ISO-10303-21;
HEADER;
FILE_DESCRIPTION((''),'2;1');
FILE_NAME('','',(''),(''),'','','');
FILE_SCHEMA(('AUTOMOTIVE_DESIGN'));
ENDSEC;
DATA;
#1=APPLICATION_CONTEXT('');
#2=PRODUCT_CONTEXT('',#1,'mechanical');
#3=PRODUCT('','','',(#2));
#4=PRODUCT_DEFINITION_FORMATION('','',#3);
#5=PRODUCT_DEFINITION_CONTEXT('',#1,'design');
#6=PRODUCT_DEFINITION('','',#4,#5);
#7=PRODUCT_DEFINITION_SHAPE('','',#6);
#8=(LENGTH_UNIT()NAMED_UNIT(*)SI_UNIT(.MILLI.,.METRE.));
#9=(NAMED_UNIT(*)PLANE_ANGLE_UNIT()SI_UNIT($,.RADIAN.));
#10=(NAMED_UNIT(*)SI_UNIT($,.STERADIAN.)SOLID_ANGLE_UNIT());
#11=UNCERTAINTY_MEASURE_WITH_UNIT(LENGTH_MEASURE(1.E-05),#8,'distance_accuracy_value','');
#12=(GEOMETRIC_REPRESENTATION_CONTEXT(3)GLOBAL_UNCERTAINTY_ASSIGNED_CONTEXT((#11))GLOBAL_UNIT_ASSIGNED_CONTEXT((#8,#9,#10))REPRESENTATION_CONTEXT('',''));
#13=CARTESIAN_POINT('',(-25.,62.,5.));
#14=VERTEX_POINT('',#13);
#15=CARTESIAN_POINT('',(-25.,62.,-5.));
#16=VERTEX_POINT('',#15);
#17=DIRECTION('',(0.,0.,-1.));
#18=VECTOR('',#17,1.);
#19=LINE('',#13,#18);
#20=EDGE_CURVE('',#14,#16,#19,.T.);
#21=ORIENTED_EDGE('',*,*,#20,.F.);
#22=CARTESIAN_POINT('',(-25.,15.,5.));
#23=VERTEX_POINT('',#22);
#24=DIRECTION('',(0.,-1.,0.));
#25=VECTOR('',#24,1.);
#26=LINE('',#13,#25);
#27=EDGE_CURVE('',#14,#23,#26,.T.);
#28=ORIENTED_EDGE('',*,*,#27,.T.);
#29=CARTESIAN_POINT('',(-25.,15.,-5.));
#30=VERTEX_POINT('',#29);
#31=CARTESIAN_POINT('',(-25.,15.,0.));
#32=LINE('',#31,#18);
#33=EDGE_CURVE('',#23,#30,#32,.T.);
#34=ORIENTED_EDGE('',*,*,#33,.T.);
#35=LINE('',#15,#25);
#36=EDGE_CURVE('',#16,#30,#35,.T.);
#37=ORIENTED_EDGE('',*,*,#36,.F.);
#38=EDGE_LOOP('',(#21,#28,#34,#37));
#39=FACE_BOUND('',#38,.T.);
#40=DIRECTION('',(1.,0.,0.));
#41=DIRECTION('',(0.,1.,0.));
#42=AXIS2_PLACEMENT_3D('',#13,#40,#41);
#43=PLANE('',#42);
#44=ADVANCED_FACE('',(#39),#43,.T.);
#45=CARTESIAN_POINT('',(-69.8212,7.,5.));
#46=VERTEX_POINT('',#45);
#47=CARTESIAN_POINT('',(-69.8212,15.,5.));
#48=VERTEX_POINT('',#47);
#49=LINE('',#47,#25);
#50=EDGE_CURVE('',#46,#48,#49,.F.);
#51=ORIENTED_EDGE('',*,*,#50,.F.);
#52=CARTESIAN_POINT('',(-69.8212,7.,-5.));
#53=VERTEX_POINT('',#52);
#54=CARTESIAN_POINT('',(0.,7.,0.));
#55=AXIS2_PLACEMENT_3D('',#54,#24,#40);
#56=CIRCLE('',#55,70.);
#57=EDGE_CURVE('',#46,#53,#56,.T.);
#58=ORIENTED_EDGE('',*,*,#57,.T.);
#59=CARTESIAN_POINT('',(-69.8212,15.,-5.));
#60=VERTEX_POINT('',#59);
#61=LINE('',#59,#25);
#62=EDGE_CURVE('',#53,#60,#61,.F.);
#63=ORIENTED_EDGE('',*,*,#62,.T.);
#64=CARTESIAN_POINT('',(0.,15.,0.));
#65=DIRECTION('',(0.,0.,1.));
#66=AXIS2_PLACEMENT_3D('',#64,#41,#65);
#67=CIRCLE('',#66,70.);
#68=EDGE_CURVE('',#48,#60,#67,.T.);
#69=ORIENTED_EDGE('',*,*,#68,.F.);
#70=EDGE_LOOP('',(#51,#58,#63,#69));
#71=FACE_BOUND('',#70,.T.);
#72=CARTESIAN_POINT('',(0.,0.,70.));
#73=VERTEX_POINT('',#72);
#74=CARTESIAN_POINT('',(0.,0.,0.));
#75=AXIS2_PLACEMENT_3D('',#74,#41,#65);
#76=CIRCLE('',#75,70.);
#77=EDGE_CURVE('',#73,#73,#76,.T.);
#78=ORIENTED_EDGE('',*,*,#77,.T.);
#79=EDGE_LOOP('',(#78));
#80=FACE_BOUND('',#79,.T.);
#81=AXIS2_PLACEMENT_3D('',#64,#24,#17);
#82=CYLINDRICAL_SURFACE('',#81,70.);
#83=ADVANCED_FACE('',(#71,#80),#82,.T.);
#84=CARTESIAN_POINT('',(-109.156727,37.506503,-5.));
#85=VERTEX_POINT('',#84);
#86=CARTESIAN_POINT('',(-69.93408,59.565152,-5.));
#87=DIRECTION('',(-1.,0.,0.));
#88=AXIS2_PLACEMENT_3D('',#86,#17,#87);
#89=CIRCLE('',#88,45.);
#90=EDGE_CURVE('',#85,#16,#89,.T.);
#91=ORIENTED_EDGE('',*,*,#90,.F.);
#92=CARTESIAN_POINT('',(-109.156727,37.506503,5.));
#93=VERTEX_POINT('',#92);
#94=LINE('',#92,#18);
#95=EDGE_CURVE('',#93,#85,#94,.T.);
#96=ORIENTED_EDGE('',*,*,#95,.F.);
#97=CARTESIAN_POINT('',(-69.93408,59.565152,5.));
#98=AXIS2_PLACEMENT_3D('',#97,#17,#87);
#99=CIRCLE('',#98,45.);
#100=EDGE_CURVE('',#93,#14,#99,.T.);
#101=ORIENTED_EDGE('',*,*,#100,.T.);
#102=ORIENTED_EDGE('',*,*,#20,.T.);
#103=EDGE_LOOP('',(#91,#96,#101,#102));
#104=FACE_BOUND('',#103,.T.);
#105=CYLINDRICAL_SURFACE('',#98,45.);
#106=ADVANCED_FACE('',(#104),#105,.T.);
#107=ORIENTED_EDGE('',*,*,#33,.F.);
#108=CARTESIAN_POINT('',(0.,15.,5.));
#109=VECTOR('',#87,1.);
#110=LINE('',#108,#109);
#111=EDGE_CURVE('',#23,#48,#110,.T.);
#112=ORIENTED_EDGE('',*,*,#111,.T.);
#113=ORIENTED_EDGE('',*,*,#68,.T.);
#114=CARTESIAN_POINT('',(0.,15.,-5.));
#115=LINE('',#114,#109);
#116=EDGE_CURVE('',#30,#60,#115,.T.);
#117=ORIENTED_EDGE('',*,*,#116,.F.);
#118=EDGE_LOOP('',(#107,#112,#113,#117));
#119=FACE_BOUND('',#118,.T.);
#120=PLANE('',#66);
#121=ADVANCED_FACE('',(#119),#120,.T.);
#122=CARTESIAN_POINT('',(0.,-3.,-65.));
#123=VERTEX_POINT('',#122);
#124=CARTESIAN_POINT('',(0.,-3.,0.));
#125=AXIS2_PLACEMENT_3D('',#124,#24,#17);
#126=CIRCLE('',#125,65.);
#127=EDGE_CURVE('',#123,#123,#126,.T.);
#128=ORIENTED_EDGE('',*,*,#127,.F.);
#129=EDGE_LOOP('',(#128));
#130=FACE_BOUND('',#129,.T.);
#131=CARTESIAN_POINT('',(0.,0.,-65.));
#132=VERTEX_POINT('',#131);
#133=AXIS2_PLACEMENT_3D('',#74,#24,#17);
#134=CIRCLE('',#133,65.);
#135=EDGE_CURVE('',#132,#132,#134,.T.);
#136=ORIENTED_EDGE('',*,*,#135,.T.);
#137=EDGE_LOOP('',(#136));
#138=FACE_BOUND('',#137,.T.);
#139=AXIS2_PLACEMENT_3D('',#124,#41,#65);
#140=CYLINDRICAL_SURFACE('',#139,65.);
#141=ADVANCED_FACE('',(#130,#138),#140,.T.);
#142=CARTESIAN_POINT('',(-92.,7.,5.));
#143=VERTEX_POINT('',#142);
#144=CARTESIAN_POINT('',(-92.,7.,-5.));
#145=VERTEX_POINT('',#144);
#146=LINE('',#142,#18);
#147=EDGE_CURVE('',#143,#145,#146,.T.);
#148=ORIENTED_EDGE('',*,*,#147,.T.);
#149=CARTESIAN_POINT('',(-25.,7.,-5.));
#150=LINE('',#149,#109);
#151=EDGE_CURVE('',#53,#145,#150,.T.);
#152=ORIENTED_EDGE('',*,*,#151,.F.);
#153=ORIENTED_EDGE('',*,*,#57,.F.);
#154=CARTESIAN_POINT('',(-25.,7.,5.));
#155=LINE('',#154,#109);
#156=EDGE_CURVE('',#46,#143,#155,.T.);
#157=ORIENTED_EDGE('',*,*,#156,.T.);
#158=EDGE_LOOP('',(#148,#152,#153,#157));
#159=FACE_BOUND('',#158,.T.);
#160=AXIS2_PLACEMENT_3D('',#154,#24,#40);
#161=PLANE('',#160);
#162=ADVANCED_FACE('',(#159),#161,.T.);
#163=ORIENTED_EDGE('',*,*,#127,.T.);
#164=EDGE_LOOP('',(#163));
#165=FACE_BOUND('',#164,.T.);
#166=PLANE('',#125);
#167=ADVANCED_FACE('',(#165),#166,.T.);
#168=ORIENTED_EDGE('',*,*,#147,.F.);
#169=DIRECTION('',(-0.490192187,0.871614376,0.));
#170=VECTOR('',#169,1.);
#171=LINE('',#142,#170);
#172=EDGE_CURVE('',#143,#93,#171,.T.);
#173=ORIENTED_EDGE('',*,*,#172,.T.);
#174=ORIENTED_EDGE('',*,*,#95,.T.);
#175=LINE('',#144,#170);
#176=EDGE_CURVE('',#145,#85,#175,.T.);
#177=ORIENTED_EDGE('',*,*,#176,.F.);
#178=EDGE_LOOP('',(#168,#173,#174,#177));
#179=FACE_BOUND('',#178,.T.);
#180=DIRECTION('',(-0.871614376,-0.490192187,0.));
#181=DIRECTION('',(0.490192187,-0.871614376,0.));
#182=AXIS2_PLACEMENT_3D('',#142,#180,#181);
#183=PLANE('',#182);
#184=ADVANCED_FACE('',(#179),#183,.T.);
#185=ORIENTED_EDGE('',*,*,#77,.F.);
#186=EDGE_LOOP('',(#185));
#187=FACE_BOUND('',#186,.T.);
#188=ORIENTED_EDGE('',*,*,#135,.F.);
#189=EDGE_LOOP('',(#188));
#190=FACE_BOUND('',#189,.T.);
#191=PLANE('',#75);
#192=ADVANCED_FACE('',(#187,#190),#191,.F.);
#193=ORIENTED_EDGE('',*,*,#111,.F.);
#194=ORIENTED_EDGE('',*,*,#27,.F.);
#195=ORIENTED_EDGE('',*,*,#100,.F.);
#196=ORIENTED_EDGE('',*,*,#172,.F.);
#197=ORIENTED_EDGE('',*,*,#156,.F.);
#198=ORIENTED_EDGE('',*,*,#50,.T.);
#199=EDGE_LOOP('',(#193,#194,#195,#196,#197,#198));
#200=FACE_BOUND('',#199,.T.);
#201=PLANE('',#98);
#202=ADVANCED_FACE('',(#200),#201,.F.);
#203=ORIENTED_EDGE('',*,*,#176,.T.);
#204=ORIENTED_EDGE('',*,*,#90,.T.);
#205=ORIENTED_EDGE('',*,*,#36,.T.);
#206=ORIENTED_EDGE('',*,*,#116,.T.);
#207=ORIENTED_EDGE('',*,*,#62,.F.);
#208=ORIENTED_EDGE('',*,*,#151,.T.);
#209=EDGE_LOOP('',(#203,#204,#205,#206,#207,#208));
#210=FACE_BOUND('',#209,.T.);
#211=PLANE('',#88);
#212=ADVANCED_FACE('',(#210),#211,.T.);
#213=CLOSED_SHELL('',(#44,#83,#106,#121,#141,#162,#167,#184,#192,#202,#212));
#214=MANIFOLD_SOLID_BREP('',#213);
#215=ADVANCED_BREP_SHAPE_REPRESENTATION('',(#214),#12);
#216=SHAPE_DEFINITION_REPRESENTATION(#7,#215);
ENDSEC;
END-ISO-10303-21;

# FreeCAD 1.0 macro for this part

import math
import FreeCAD as App
import Part
import Sketcher
from FreeCAD import Vector
Q = App.Units.Quantity

doc = App.newDocument("Part")
body = doc.addObject("PartDesign::Body", "Body")

sketch1 = body.newObject("Sketcher::SketchObject", "Sketch")
sketch1.AttachmentSupport = (doc.getObject("XZ_Plane"), [""])
sketch1.MapMode = "FlatFace"
sketch1.addGeometry(Part.Circle(Vector(0, 0, 0), Vector(0, 0, 1), 70), False)
sketch1.addConstraint([
    Sketcher.Constraint("Coincident", 0, 3, -1, 1),
    Sketcher.Constraint("Diameter", 0, Q("140 mm")),
])
pad1 = body.newObject("PartDesign::Pad", "Pad")
pad1.Profile = sketch1
pad1.Length = 15
pad1.Reversed = True

sketch2 = body.newObject("Sketcher::SketchObject", "Sketch001")
sketch2.AttachmentSupport = (doc.getObject("XZ_Plane"), [""])
sketch2.MapMode = "FlatFace"
sketch2.addGeometry(Part.Circle(Vector(0, 0, 0), Vector(0, 0, 1), 65), False)
sketch2.addConstraint([
    Sketcher.Constraint("Coincident", 0, 3, -1, 1),
    Sketcher.Constraint("Diameter", 0, Q("130 mm")),
])
pad2 = body.newObject("PartDesign::Pad", "Pad001")
pad2.Profile = sketch2
pad2.Length = 3

sketch3 = body.newObject("Sketcher::SketchObject", "Sketch002")
sketch3.AttachmentSupport = (doc.getObject("XY_Plane"), [""])
sketch3.MapMode = "FlatFace"
sketch3.addGeometry([
    Part.LineSegment(Vector(-25, 7, 0), Vector(-25, 62, 0)),
    Part.ArcOfCircle(Part.Circle(Vector(-69.93408, 59.565152, 0), Vector(0, 0, 1), 45), math.radians(3.10166), math.radians(209.353214)),
    Part.LineSegment(Vector(-109.156727, 37.506503, 0), Vector(-92, 7, 0)),
    Part.LineSegment(Vector(-92, 7, 0), Vector(-25, 7, 0)),
], False)
sketch3.addConstraint([
    Sketcher.Constraint("Coincident", 0, 2, 1, 1),
    Sketcher.Constraint("Tangent", 1, 2, 2, 1),
    Sketcher.Constraint("Coincident", 2, 2, 3, 1),
    Sketcher.Constraint("Coincident", 3, 2, 0, 1),
    Sketcher.Constraint("Vertical", 0),
    Sketcher.Constraint("Horizontal", 3),
    Sketcher.Constraint("Radius", 1, Q("45 mm")),
    Sketcher.Constraint("DistanceX", 3, 1, 3, 2, Q("67 mm")),
    Sketcher.Constraint("DistanceY", 0, 1, 0, 2, Q("55 mm")),
    Sketcher.Constraint("Distance", 2, Q("35 mm")),
    Sketcher.Constraint("DistanceX", 0, 2, -1, 1, Q("25 mm")),
    Sketcher.Constraint("DistanceY", -1, 1, 0, 2, Q("62 mm")),
])
pad3 = body.newObject("PartDesign::Pad", "Pad002")
pad3.Profile = sketch3
pad3.Length = 10
pad3.Midplane = True

doc.recompute()
